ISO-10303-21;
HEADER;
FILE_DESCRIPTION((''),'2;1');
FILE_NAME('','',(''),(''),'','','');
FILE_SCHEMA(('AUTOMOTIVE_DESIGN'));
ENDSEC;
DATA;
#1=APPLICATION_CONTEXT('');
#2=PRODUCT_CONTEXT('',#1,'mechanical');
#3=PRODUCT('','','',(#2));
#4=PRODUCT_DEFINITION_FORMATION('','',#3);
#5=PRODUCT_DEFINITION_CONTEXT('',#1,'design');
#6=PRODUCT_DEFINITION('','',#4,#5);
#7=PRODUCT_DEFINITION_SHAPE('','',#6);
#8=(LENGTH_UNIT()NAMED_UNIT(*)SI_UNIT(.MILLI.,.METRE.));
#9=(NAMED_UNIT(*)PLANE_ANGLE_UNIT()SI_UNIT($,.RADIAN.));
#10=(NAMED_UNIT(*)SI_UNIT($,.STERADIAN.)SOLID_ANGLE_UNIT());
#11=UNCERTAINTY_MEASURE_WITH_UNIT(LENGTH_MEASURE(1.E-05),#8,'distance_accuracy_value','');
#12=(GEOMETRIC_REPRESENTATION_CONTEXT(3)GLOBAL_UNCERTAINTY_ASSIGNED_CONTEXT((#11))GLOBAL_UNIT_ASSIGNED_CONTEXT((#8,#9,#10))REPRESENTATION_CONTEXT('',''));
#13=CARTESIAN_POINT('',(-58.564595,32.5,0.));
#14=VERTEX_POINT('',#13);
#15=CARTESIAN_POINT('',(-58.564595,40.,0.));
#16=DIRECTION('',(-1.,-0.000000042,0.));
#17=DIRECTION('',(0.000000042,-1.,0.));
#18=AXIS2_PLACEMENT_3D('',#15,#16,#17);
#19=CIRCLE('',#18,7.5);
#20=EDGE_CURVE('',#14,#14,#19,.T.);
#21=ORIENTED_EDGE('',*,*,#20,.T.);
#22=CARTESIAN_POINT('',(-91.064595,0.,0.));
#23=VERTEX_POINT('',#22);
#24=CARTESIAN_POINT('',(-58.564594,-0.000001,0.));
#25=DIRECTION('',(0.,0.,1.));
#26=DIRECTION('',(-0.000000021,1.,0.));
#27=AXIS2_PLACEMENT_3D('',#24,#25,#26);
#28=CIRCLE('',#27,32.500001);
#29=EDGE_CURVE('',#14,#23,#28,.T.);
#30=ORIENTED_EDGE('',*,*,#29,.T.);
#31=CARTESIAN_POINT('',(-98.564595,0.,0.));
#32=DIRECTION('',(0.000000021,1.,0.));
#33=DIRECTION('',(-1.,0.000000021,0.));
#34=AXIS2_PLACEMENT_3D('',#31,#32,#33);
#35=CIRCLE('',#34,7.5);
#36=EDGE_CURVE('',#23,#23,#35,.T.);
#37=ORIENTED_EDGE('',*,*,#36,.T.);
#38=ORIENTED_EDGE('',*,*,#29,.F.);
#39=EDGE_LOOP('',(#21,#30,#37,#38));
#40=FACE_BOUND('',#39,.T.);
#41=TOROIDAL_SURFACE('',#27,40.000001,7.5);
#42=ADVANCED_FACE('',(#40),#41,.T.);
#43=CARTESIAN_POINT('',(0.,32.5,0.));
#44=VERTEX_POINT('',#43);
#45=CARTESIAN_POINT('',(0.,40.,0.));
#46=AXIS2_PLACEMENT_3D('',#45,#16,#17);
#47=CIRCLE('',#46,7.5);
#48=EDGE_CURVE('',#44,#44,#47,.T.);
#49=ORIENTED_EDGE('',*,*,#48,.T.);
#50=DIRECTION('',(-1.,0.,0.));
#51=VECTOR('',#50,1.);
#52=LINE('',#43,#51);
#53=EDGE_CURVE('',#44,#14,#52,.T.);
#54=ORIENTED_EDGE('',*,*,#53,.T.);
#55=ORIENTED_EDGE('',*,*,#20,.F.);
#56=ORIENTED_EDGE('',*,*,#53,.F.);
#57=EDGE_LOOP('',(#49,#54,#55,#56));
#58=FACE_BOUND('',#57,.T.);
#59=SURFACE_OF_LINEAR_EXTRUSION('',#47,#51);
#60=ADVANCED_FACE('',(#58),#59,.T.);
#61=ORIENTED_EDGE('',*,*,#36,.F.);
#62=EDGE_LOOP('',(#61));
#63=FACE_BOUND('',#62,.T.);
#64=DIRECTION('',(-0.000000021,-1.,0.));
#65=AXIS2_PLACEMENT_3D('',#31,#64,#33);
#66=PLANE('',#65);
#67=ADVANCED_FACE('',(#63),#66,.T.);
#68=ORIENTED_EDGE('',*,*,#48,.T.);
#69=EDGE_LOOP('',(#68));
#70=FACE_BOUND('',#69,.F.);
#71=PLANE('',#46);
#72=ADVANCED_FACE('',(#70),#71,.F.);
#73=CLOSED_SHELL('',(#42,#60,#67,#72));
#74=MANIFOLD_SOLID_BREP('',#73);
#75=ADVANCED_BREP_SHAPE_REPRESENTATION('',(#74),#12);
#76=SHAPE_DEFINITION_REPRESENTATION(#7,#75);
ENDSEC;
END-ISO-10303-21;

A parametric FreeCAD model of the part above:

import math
import FreeCAD as App
import Part
import Sketcher

V = App.Vector

doc = App.newDocument("Part")
body = doc.addObject("PartDesign::Body", "Body")

sketch1 = body.newObject("Sketcher::SketchObject", "Sketch")
sketch1.AttachmentSupport = (doc.getObject("XZ_Plane"), [""])
sketch1.MapMode = "FlatFace"
sketch1.addGeometry(Part.Circle(V(-99, 0, 0), V(0, 0, 1), 8), False)
sketch1.addConstraint(Sketcher.Constraint("PointOnObject", 0, 3, -1))
sketch1.addConstraint(Sketcher.Constraint("Diameter", 0, 15.0))
sketch1.addConstraint(Sketcher.Constraint("DistanceX", 0, 3, -1, 1, 98.564595))

sketch2 = body.newObject("Sketcher::SketchObject", "Sketch001")
sketch2.AttachmentSupport = (doc.getObject("XY_Plane"), [""])
sketch2.MapMode = "FlatFace"
sketch2.addGeometry(Part.LineSegment(V(0, 40, 0), V(-59, 40, 0)), False)
sketch2.addGeometry(Part.ArcOfCircle(Part.Circle(V(-59, 0, 0), V(0, 0, 1), 40), math.radians(90), math.radians(180)), False)
sketch2.addConstraint(Sketcher.Constraint("Tangent", 0, 2, 1, 1))
sketch2.addConstraint(Sketcher.Constraint("Horizontal", 0))
sketch2.addConstraint(Sketcher.Constraint("PointOnObject", 1, 3, -1))
sketch2.addConstraint(Sketcher.Constraint("PointOnObject", 0, 1, -2))
sketch2.addConstraint(Sketcher.Constraint("PointOnObject", 1, 2, -1))
sketch2.addConstraint(Sketcher.Constraint("Radius", 1, 40.000001))
sketch2.addConstraint(Sketcher.Constraint("DistanceX", 0, 2, 0, 1, 58.564595))
doc.recompute()

additivepipe = body.newObject("PartDesign::AdditivePipe", "AdditivePipe")
additivepipe.Profile = sketch1
additivepipe.Spine = (sketch2, ["Edge1", "Edge2"])

doc.recompute()
